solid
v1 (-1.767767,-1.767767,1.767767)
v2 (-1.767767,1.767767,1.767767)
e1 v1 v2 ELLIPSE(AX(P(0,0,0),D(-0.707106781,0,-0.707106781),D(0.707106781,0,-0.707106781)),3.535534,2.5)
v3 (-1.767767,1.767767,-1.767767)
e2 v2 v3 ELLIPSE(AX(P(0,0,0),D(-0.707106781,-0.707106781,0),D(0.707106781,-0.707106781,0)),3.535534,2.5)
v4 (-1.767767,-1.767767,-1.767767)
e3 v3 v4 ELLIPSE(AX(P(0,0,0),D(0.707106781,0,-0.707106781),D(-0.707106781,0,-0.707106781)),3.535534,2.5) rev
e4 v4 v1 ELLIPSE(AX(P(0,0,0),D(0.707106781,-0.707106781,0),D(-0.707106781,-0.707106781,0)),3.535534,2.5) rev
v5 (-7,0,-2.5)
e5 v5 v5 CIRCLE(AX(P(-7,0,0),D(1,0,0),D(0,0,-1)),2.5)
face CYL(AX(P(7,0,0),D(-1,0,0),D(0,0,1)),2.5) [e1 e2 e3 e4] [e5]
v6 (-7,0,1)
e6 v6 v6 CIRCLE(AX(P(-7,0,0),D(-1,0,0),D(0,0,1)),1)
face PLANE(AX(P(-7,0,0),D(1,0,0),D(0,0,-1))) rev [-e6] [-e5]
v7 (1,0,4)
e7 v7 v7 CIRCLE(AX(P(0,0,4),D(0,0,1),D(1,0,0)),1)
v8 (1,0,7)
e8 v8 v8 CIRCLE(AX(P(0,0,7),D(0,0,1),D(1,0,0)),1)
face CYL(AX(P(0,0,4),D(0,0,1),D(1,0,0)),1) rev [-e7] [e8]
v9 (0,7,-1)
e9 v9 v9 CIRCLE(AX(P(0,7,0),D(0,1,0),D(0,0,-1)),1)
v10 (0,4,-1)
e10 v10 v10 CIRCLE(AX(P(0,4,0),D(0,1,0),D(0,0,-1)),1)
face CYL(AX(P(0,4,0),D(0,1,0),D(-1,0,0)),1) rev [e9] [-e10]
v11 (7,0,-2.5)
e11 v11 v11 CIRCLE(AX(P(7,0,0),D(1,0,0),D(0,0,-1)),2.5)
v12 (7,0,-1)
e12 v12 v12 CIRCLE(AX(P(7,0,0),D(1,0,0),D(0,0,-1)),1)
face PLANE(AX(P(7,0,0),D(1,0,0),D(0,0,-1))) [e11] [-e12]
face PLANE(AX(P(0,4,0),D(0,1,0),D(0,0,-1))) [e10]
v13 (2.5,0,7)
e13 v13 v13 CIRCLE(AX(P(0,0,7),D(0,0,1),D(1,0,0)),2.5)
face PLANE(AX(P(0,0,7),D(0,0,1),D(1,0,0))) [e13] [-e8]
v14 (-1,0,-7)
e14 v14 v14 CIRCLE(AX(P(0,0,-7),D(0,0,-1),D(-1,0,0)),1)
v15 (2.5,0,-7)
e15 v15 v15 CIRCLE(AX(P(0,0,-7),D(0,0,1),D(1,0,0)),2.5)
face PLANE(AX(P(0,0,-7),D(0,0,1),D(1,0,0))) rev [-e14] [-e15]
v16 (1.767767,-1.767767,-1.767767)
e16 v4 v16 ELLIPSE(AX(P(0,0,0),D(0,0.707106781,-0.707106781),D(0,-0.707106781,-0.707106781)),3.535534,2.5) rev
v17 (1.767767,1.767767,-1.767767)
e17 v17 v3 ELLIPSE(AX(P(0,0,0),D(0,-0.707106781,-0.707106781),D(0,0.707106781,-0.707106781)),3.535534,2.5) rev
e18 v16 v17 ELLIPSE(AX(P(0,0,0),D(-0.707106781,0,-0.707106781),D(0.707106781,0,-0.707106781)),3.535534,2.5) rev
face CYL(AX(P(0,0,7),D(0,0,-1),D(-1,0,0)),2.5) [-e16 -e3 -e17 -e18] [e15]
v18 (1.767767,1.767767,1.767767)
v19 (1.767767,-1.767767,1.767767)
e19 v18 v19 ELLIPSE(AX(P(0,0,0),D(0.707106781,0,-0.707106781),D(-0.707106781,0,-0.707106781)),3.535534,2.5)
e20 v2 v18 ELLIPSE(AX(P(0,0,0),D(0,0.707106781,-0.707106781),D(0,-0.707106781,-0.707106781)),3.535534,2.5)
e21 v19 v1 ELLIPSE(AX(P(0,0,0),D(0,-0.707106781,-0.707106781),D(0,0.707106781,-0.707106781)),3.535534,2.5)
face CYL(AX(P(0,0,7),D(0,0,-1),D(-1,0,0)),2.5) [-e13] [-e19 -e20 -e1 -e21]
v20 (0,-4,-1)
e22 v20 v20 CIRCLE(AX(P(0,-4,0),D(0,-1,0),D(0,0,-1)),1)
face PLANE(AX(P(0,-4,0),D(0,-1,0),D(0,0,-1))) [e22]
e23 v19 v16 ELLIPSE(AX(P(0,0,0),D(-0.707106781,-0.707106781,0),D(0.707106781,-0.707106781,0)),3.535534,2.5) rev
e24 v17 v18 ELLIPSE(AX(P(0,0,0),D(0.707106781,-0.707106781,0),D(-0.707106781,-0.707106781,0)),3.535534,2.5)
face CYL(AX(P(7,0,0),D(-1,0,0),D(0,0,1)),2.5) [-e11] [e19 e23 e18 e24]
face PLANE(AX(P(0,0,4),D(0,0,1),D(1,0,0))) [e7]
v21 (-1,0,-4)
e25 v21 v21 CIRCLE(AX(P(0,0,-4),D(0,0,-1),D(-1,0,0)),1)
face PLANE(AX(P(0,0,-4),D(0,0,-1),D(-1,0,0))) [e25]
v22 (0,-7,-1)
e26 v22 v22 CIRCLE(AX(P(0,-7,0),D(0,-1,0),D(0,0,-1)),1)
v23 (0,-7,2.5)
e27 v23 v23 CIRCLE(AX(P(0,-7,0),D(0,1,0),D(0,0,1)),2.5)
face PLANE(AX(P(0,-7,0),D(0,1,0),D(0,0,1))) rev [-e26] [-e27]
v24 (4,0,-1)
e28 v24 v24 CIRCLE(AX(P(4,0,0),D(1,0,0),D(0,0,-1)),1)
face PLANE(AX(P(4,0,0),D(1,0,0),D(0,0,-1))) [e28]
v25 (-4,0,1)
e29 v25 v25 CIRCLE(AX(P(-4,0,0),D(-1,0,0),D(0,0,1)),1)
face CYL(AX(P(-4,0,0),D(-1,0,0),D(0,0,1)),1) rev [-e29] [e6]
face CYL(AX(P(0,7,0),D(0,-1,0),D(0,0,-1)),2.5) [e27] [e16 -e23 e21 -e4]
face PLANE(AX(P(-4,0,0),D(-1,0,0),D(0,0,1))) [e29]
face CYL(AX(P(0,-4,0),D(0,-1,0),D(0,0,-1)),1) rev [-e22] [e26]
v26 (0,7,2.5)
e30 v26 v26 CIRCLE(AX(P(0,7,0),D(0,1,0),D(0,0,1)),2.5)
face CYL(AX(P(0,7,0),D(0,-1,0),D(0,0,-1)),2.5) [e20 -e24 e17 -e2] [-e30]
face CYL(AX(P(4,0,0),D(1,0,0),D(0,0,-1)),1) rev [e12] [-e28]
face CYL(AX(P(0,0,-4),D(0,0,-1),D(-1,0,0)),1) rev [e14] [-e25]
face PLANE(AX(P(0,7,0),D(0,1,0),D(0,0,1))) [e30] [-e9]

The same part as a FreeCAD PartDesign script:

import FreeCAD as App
import Part
import Sketcher

V = App.Vector
Q = App.Units.Quantity

doc = App.newDocument("Part")
body = doc.addObject("PartDesign::Body", "Body")

# Sketch on XY plane
sketch1 = body.newObject("Sketcher::SketchObject", "Sketch")
sketch1.AttachmentSupport = (doc.getObject("XY_Plane"), [""])
sketch1.MapMode = "FlatFace"
sketch1.addGeometry(Part.Circle(V(0, 0, 0), V(0, 0, 1), 2.5), False)
sketch1.addConstraint(Sketcher.Constraint("Coincident", 0, 3, -1, 1))
sketch1.addConstraint(Sketcher.Constraint("Diameter", 0, Q("5 mm")))
pad1 = body.newObject("PartDesign::Pad", "Pad")
pad1.Profile = sketch1
pad1.Length = 14
pad1.Midplane = True

# Sketch on XZ plane
sketch2 = body.newObject("Sketcher::SketchObject", "Sketch001")
sketch2.AttachmentSupport = (doc.getObject("XZ_Plane"), [""])
sketch2.MapMode = "FlatFace"
sketch2.addGeometry(Part.Circle(V(0, 0, 0), V(0, 0, 1), 2.5), False)
sketch2.addConstraint(Sketcher.Constraint("Coincident", 0, 3, -1, 1))
sketch2.addConstraint(Sketcher.Constraint("Diameter", 0, Q("5 mm")))
pad2 = body.newObject("PartDesign::Pad", "Pad001")
pad2.Profile = sketch2
pad2.Length = 14
pad2.Midplane = True

# Sketch on YZ plane
sketch3 = body.newObject("Sketcher::SketchObject", "Sketch002")
sketch3.AttachmentSupport = (doc.getObject("YZ_Plane"), [""])
sketch3.MapMode = "FlatFace"
sketch3.addGeometry(Part.Circle(V(0, 0, 0), V(0, 0, 1), 2.5), False)
sketch3.addConstraint(Sketcher.Constraint("Coincident", 0, 3, -1, 1))
sketch3.addConstraint(Sketcher.Constraint("Diameter", 0, Q("5 mm")))
pad3 = body.newObject("PartDesign::Pad", "Pad002")
pad3.Profile = sketch3
pad3.Length = 14
pad3.Midplane = True

# Sketch on YZ plane
sketch4 = body.newObject("Sketcher::SketchObject", "Sketch003")
sketch4.AttachmentSupport = (doc.getObject("YZ_Plane"), [""])
sketch4.MapMode = "FlatFace"
sketch4.AttachmentOffset = App.Placement(V(0, 0, 7), App.Rotation())
sketch4.addGeometry(Part.Circle(V(0, 0, 0), V(0, 0, 1), 1), False)
sketch4.addConstraint(Sketcher.Constraint("Coincident", 0, 3, -1, 1))
sketch4.addConstraint(Sketcher.Constraint("Diameter", 0, Q("2 mm")))
pocket1 = body.newObject("PartDesign::Pocket", "Pocket")
pocket1.Profile = sketch4
pocket1.Length = 3
doc.recompute()

polarpattern = body.newObject("PartDesign::PolarPattern", "PolarPattern")
polarpattern.Originals = [pocket1]
polarpattern.Axis = (doc.getObject("Y_Axis"), [""])
polarpattern.Angle = 360
polarpattern.Occurrences = 4
body.Tip = polarpattern
doc.recompute()

polarpattern2 = body.newObject("PartDesign::PolarPattern", "PolarPattern001")
polarpattern2.Originals = [pocket1]
polarpattern2.Axis = (doc.getObject("Z_Axis"), [""])
polarpattern2.Angle = 360
polarpattern2.Occurrences = 4
body.Tip = polarpattern2

doc.recompute()
